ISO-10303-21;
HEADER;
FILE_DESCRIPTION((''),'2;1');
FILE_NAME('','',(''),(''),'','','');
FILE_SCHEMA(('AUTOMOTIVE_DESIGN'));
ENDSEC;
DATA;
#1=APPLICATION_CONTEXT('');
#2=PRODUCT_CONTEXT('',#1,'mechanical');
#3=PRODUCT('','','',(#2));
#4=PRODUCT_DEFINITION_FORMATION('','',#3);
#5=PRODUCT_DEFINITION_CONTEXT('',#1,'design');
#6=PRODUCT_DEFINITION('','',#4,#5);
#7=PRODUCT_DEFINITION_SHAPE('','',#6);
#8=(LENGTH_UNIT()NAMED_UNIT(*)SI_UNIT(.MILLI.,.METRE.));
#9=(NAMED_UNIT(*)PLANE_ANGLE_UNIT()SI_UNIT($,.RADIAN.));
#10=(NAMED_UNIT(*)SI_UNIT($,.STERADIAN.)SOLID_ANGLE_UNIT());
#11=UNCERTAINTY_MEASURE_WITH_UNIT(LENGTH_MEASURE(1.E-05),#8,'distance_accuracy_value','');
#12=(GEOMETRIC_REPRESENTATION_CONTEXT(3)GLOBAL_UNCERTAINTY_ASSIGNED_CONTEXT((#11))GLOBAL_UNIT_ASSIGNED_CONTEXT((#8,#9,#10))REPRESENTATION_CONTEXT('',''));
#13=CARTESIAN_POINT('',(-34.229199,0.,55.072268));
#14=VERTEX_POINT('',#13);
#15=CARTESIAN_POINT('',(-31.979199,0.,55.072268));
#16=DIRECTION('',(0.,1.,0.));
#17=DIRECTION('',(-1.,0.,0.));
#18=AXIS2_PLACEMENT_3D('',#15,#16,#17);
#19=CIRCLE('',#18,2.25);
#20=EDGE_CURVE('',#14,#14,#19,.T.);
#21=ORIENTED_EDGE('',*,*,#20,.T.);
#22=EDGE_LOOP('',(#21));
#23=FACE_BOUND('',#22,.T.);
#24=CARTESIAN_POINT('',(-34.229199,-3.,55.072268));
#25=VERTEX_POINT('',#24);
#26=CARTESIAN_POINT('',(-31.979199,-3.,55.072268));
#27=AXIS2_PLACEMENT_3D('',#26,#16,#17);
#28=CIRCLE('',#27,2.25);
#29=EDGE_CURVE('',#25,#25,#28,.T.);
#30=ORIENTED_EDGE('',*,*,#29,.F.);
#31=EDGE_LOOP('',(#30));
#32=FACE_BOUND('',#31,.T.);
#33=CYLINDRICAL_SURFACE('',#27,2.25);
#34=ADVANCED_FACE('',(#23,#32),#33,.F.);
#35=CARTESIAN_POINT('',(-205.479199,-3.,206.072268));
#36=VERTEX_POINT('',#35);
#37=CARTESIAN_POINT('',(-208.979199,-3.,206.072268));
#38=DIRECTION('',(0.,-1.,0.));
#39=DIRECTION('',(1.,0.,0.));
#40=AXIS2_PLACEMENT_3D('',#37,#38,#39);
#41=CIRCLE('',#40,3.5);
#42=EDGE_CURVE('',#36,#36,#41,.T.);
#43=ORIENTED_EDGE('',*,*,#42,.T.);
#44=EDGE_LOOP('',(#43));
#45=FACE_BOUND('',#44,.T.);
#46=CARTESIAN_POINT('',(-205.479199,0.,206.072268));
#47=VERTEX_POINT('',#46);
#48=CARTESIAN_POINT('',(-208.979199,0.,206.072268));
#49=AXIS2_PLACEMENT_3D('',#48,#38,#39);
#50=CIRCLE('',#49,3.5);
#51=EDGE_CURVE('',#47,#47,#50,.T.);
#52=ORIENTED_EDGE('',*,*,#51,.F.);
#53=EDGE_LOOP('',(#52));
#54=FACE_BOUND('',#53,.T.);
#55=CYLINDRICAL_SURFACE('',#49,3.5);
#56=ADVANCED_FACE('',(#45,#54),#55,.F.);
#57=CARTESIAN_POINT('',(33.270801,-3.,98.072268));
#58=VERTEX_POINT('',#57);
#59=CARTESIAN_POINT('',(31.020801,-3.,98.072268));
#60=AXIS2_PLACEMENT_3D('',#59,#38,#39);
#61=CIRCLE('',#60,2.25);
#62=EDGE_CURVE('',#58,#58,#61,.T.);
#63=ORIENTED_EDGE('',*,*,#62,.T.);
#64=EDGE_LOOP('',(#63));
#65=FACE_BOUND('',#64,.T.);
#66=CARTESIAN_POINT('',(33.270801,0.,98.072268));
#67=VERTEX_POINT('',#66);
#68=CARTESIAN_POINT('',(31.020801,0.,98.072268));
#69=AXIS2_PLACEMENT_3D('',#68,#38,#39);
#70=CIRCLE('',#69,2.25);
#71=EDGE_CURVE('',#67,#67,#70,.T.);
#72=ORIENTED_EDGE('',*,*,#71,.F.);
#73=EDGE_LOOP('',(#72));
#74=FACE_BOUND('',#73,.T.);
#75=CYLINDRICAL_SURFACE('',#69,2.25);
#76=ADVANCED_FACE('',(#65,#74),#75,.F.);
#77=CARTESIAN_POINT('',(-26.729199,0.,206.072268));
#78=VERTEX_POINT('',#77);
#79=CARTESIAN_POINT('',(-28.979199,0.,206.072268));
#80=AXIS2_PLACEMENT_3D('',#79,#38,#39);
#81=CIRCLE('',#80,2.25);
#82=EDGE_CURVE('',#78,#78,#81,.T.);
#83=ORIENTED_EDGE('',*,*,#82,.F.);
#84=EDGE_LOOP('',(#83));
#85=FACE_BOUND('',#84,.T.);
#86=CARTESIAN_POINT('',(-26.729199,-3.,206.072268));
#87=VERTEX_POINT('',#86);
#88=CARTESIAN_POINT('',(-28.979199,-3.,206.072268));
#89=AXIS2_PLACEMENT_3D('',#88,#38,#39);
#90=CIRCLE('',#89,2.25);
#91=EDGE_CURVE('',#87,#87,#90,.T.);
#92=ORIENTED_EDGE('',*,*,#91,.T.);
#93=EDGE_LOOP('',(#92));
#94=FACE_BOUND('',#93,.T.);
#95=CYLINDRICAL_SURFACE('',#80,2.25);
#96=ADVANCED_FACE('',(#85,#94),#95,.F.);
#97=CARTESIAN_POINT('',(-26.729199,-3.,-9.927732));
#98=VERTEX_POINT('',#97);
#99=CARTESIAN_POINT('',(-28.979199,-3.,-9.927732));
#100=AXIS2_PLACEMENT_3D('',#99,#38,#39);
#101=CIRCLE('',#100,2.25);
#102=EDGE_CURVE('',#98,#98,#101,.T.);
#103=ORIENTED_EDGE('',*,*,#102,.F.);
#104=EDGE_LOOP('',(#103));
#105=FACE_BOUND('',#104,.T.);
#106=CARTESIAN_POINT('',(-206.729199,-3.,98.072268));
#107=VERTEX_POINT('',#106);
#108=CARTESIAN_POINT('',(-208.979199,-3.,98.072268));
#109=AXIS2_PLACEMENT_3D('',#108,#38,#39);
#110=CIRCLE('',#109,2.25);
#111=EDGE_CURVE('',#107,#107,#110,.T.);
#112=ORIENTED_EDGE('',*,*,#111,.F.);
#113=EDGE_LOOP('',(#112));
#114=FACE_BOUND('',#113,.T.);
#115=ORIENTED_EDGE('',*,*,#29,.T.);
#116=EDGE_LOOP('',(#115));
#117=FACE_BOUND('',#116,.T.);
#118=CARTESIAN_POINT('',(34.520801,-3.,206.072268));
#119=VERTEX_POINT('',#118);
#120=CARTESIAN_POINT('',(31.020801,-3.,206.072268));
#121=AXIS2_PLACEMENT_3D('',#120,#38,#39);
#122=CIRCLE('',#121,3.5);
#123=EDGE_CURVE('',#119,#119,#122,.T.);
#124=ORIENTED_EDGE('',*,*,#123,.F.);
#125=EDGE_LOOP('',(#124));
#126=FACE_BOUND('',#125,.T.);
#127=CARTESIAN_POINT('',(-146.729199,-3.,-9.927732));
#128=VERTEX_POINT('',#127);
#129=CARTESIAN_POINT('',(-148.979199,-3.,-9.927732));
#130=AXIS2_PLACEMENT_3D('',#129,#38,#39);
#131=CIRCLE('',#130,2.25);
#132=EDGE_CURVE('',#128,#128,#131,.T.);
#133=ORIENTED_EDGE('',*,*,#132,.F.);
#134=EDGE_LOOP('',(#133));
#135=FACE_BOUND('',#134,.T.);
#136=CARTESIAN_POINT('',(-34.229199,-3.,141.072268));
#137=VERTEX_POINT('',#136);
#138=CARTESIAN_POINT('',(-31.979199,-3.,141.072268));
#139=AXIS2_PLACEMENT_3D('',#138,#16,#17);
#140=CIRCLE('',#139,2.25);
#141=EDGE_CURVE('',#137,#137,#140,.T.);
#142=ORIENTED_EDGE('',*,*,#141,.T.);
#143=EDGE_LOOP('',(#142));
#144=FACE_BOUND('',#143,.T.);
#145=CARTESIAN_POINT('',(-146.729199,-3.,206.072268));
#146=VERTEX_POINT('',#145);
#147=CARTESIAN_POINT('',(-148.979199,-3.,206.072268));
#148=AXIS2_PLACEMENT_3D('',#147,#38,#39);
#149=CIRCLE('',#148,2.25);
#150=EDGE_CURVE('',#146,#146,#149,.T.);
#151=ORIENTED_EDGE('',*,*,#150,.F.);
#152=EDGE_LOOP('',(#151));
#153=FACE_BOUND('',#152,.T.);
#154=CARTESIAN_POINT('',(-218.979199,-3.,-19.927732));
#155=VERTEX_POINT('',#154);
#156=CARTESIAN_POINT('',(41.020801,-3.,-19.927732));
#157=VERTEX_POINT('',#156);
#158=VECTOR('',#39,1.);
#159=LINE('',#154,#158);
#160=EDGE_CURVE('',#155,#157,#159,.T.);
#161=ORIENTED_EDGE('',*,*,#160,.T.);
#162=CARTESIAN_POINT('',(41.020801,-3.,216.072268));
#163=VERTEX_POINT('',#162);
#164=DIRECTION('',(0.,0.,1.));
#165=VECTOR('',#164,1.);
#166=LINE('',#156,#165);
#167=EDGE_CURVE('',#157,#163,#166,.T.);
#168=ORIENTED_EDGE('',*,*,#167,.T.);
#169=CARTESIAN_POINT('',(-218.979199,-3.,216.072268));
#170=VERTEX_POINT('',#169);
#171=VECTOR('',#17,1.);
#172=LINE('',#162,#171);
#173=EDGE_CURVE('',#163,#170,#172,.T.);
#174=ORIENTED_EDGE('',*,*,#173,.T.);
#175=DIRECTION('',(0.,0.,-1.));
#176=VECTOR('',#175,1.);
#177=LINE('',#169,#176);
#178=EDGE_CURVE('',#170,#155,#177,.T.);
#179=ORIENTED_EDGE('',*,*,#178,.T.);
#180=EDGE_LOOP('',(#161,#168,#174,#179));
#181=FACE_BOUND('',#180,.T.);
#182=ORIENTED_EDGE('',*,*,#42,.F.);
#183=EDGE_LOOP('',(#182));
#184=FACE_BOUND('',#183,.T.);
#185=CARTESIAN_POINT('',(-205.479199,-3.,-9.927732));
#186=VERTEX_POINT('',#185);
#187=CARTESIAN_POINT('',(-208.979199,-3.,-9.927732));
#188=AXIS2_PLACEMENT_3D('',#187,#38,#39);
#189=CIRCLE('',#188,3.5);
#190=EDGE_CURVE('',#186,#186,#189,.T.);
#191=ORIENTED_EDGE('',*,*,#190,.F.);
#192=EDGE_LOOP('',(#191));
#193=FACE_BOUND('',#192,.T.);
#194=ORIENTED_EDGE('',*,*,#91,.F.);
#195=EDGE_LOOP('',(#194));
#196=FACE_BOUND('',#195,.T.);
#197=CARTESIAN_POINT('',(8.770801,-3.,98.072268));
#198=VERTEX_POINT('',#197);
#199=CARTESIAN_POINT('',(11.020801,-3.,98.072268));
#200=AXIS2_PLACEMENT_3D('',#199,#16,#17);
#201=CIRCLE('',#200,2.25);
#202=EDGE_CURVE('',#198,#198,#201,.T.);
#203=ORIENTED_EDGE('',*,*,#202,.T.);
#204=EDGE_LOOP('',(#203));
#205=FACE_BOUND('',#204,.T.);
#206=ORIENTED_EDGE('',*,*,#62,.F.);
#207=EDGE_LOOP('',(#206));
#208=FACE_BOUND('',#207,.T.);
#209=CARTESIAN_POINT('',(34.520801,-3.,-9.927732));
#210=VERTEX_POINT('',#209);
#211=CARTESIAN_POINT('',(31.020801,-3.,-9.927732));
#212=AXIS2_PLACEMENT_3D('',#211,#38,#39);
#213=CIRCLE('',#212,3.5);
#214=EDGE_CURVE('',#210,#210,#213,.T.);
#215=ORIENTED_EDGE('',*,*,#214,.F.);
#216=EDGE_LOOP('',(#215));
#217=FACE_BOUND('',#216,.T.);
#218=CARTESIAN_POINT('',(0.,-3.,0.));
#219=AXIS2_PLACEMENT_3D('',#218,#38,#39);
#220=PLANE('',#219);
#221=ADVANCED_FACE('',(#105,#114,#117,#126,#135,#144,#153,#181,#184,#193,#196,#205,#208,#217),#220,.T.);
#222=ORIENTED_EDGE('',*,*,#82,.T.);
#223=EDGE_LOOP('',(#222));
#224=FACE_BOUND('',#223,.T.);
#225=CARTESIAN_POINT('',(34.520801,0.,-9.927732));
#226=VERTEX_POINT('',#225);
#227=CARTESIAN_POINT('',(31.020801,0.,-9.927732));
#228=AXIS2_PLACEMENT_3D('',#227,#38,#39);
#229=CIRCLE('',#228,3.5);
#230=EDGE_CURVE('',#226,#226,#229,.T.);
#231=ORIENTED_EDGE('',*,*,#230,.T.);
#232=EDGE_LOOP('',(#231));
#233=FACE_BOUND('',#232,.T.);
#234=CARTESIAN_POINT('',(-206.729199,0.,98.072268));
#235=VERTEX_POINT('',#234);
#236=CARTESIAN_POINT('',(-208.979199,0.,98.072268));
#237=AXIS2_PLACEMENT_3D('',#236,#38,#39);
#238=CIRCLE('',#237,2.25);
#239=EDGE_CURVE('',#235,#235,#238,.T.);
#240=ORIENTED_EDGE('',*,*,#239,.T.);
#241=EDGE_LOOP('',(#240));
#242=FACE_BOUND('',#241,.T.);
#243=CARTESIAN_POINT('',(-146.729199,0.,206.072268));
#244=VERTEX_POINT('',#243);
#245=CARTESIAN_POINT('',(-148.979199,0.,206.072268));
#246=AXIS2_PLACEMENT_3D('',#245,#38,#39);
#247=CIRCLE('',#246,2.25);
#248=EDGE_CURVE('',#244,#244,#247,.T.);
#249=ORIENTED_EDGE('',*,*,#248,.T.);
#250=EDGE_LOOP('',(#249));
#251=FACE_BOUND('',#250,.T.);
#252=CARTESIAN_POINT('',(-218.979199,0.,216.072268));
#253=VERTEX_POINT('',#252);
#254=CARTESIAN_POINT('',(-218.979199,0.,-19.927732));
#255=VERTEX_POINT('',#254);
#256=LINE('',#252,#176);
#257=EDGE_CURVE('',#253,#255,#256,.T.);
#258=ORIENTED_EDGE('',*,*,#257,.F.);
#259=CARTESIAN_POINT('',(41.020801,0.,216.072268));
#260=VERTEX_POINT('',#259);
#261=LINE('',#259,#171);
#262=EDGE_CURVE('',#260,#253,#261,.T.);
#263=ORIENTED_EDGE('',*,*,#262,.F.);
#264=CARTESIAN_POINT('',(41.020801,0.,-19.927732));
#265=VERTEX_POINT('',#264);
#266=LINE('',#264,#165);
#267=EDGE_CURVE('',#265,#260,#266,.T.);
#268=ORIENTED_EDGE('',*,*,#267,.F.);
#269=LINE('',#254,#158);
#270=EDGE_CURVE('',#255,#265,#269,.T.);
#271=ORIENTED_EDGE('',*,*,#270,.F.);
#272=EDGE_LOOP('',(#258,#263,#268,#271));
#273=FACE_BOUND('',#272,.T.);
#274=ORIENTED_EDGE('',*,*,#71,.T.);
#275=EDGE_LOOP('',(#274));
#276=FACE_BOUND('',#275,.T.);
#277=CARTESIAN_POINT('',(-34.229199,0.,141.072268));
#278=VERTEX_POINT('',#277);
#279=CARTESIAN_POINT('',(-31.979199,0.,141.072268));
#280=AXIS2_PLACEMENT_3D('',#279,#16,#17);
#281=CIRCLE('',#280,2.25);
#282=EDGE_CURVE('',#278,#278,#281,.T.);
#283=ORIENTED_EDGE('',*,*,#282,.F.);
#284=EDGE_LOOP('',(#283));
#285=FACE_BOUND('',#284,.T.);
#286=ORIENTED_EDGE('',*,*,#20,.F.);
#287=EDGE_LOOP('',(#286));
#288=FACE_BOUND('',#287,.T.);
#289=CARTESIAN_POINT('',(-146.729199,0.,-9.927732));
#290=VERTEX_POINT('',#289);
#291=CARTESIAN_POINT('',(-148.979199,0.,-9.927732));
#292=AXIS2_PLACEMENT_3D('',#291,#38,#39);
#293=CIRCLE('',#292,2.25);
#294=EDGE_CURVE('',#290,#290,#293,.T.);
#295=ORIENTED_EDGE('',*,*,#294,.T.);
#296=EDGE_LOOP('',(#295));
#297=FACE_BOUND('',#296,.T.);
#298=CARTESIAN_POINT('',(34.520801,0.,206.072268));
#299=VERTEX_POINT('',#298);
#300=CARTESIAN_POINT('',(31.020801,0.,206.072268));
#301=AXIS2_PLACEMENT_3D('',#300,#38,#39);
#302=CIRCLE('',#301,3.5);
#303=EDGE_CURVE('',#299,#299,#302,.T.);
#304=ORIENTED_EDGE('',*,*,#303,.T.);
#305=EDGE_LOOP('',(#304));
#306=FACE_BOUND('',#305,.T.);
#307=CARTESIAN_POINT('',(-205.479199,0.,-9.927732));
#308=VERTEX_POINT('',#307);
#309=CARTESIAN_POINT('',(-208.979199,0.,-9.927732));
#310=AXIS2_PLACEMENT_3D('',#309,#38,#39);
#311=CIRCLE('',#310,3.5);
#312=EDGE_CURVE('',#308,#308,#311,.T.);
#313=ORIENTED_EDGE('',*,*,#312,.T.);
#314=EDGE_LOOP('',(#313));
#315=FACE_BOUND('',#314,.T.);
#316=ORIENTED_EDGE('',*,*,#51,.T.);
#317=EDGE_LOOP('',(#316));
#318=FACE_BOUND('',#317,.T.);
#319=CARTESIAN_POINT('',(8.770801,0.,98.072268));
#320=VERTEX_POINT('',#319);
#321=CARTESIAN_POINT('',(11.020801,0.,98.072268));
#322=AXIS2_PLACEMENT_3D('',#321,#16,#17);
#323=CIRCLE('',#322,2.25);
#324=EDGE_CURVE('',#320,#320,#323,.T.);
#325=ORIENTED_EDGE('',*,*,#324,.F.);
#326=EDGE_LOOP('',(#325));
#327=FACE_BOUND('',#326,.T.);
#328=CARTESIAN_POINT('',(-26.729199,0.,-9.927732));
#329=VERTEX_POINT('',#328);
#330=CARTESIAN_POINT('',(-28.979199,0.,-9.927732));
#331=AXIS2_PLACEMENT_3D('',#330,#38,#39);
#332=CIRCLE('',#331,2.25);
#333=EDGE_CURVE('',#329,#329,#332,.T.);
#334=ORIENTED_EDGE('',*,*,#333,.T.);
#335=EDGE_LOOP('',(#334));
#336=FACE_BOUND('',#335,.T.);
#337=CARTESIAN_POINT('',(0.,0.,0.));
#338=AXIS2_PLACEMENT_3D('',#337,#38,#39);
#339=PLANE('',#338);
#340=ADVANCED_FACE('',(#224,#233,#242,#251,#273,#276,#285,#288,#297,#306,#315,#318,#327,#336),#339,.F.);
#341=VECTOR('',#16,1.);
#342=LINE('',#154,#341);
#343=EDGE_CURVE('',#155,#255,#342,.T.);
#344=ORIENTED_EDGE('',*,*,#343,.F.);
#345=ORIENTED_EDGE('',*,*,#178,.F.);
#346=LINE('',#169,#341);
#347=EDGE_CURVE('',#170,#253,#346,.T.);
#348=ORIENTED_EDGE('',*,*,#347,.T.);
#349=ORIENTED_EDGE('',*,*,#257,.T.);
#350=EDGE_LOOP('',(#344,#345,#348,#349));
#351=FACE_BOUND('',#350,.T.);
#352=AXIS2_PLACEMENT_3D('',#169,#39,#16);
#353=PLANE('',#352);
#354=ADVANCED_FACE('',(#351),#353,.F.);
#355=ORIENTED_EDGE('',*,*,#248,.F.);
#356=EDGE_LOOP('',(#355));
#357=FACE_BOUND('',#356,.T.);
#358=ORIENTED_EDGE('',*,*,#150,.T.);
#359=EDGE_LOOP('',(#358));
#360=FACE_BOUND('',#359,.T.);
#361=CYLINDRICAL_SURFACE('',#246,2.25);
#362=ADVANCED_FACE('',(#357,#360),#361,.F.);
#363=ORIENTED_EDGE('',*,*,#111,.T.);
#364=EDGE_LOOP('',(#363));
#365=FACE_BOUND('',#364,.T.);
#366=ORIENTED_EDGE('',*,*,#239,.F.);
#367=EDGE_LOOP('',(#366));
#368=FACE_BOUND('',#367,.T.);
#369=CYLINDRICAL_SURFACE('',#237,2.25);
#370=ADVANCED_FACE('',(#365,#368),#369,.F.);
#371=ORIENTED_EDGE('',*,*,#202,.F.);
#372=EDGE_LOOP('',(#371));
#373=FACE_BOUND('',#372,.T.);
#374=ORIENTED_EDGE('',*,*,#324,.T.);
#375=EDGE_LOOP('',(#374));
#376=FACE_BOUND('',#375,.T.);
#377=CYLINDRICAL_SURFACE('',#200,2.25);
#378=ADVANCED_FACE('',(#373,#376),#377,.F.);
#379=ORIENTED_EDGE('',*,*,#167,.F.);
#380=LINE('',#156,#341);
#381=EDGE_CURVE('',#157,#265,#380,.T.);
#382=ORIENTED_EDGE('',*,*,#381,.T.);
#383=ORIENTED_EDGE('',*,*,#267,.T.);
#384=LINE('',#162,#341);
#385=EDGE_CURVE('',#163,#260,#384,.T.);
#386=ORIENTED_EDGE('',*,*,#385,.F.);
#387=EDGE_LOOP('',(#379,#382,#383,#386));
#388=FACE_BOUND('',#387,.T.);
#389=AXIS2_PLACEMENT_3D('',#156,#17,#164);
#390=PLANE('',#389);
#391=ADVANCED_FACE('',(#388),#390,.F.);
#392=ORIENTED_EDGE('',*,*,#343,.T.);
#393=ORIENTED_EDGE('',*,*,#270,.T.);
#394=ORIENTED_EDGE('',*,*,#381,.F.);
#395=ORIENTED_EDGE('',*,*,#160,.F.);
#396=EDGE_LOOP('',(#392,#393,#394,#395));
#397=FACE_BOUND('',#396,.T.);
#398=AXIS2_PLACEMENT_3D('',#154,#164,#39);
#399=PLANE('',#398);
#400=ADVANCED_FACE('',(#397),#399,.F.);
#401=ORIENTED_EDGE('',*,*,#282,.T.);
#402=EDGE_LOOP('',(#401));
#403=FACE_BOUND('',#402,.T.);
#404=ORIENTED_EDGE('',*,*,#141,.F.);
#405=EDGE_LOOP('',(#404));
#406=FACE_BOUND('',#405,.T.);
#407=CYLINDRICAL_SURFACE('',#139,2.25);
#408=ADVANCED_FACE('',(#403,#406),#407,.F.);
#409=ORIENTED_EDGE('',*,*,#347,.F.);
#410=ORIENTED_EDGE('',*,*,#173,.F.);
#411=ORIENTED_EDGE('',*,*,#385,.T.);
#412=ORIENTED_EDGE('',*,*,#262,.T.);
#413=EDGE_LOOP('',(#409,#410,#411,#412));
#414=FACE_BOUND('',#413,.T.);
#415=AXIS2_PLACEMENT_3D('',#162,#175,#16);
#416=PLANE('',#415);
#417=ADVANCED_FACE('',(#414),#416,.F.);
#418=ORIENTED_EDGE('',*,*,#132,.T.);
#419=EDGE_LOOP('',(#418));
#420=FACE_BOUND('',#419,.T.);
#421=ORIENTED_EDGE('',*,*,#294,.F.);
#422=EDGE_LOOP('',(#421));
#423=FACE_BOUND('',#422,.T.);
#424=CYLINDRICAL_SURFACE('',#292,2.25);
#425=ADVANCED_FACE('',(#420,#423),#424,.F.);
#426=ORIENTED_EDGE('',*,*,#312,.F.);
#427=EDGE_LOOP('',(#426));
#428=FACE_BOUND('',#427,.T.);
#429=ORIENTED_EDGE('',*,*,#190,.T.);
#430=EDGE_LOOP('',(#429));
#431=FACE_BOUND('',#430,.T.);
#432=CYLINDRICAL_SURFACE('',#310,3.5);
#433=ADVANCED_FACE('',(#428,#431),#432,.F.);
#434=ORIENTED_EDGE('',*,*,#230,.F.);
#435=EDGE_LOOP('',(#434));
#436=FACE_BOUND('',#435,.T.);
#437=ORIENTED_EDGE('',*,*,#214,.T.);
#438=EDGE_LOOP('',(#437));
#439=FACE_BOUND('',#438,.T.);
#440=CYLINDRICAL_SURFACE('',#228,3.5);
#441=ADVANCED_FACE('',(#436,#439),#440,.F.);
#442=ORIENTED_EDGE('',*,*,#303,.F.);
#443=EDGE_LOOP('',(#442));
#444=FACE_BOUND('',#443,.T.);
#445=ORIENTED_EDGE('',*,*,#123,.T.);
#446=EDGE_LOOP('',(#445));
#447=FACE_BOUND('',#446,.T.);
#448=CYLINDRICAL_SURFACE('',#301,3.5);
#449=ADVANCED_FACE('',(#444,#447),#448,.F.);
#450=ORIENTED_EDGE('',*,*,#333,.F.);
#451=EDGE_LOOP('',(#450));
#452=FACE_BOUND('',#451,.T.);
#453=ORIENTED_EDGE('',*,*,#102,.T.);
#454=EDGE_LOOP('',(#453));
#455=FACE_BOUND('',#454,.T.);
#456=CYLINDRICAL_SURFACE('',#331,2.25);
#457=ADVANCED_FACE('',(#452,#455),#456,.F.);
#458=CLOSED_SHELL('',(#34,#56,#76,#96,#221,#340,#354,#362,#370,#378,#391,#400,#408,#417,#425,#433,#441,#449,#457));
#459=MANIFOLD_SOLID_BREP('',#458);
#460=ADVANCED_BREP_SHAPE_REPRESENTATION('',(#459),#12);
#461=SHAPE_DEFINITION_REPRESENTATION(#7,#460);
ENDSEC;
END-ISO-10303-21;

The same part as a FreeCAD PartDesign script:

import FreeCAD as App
import Part
import Sketcher
from FreeCAD import Vector
Q = App.Units.Quantity

doc = App.newDocument("Part")
body = doc.addObject("PartDesign::Body", "Body")

# Sketch on XZ plane
sketch1 = body.newObject("Sketcher::SketchObject", "Sketch")
sketch1.AttachmentSupport = (doc.getObject("XZ_Plane"), [""])
sketch1.MapMode = "FlatFace"
sketch1.addGeometry([
    Part.LineSegment(Vector(-219, 216, 0), Vector(-219, -20, 0)),
    Part.LineSegment(Vector(-219, -20, 0), Vector(41, -20, 0)),
    Part.LineSegment(Vector(41, -20, 0), Vector(41, 216, 0)),
    Part.LineSegment(Vector(41, 216, 0), Vector(-219, 216, 0)),
], False)
sketch1.addConstraint([
    Sketcher.Constraint("Coincident", 0, 2, 1, 1),
    Sketcher.Constraint("Coincident", 1, 2, 2, 1),
    Sketcher.Constraint("Coincident", 2, 2, 3, 1),
    Sketcher.Constraint("Coincident", 3, 2, 0, 1),
    Sketcher.Constraint("Vertical", 0),
    Sketcher.Constraint("Horizontal", 1),
    Sketcher.Constraint("Vertical", 2),
    Sketcher.Constraint("Horizontal", 3),
    Sketcher.Constraint("DistanceX", 1, 1, 1, 2, Q("260 mm")),
    Sketcher.Constraint("DistanceY", 0, 2, 0, 1, Q("236 mm")),
    Sketcher.Constraint("DistanceX", 0, 2, -1, 1, Q("218.979199 mm")),
    Sketcher.Constraint("DistanceY", 0, 2, -1, 1, Q("19.927732 mm")),
])
pad1 = body.newObject("PartDesign::Pad", "Pad")
pad1.Profile = sketch1
pad1.Length = 3

# Sketch on XZ plane
sketch2 = body.newObject("Sketcher::SketchObject", "Sketch001")
sketch2.AttachmentSupport = (doc.getObject("XZ_Plane"), [""])
sketch2.MapMode = "FlatFace"
sketch2.AttachmentOffset = App.Placement(Vector(0, 0, 3), App.Rotation())
sketch2.addGeometry([
    Part.Circle(Vector(-209, 98.1, 0), Vector(0, 0, 1), 2.2),  # 0
    Part.Circle(Vector(-149, -9.9, 0), Vector(0, 0, 1), 2.2),  # 1
    Part.Circle(Vector(-29, -9.9, 0), Vector(0, 0, 1), 2.2),  # 2
    Part.Circle(Vector(31, 98.1, 0), Vector(0, 0, 1), 2.2),  # 3
    Part.Circle(Vector(-29, 206.1, 0), Vector(0, 0, 1), 2.2),  # 4
    Part.Circle(Vector(-149, 206.1, 0), Vector(0, 0, 1), 2.2),  # 5
    Part.Circle(Vector(-209, -9.9, 0), Vector(0, 0, 1), 3.5),  # 6
    Part.Circle(Vector(-209, 206.1, 0), Vector(0, 0, 1), 3.5),  # 7
    Part.Circle(Vector(31, -9.9, 0), Vector(0, 0, 1), 3.5),  # 8
    Part.Circle(Vector(31, 206.1, 0), Vector(0, 0, 1), 3.5),  # 9
], False)
sketch2.addConstraint([
    Sketcher.Constraint("Equal", 0, 1),
    Sketcher.Constraint("Equal", 1, 2),
    Sketcher.Constraint("Equal", 2, 3),
    Sketcher.Constraint("Equal", 3, 4),
    Sketcher.Constraint("Equal", 4, 5),
    Sketcher.Constraint("Equal", 6, 7),
    Sketcher.Constraint("Equal", 7, 8),
    Sketcher.Constraint("Equal", 8, 9),
    Sketcher.Constraint("Horizontal", 1, 3, 2, 3),
    Sketcher.Constraint("Horizontal", 0, 3, 3, 3),
    Sketcher.Constraint("Horizontal", 4, 3, 5, 3),
    Sketcher.Constraint("Horizontal", 2, 3, 6, 3),
    Sketcher.Constraint("Horizontal", 5, 3, 7, 3),
    Sketcher.Constraint("Horizontal", 6, 3, 8, 3),
    Sketcher.Constraint("Horizontal", 7, 3, 9, 3),
    Sketcher.Constraint("Vertical", 2, 3, 4, 3),
    Sketcher.Constraint("Vertical", 1, 3, 5, 3),
    Sketcher.Constraint("Vertical", 0, 3, 6, 3),
    Sketcher.Constraint("Vertical", 6, 3, 7, 3),
    Sketcher.Constraint("Vertical", 3, 3, 8, 3),
    Sketcher.Constraint("Vertical", 8, 3, 9, 3),
    Sketcher.Constraint("Diameter", 6, Q("7 mm")),
    Sketcher.Constraint("Diameter", 0, Q("4.5 mm")),
    Sketcher.Constraint("DistanceX", 0, 3, 1, 3, Q("60 mm")),
    Sketcher.Constraint("DistanceY", 1, 3, 0, 3, Q("108 mm")),
    Sketcher.Constraint("DistanceX", 1, 3, 2, 3, Q("120 mm")),
    Sketcher.Constraint("DistanceX", 2, 3, 3, 3, Q("60 mm")),
    Sketcher.Constraint("DistanceY", 3, 3, 4, 3, Q("108 mm")),
    Sketcher.Constraint("DistanceX", 0, 3, -1, 1, Q("208.979199 mm")),
    Sketcher.Constraint("DistanceY", -1, 1, 0, 3, Q("98.072268 mm")),
])
pocket1 = body.newObject("PartDesign::Pocket", "Pocket")
pocket1.Profile = sketch2
pocket1.Type = "ThroughAll"

# Sketch on XZ plane
sketch3 = body.newObject("Sketcher::SketchObject", "Sketch002")
sketch3.AttachmentSupport = (doc.getObject("XZ_Plane"), [""])
sketch3.MapMode = "FlatFace"
sketch3.addGeometry([
    Part.Circle(Vector(-32, 141.1, 0), Vector(0, 0, 1), 2.2),
    Part.Circle(Vector(11, 98.1, 0), Vector(0, 0, 1), 2.2),
    Part.Circle(Vector(-32, 55.1, 0), Vector(0, 0, 1), 2.2),
], False)
sketch3.addConstraint([
    Sketcher.Constraint("Equal", 0, 1),
    Sketcher.Constraint("Equal", 1, 2),
    Sketcher.Constraint("Vertical", 0, 3, 2, 3),
    Sketcher.Constraint("Diameter", 0, Q("4.5 mm")),
    Sketcher.Constraint("DistanceX", 0, 3, 1, 3, Q("43 mm")),
    Sketcher.Constraint("DistanceY", 1, 3, 0, 3, Q("43 mm")),
    Sketcher.Constraint("DistanceY", 2, 3, 1, 3, Q("43 mm")),
    Sketcher.Constraint("DistanceX", 0, 3, -1, 1, Q("31.979199 mm")),
    Sketcher.Constraint("DistanceY", -1, 1, 0, 3, Q("141.072268 mm")),
])
pocket2 = body.newObject("PartDesign::Pocket", "Pocket001")
pocket2.Profile = sketch3
pocket2.Type = "ThroughAll"
pocket2.Reversed = True

doc.recompute()
